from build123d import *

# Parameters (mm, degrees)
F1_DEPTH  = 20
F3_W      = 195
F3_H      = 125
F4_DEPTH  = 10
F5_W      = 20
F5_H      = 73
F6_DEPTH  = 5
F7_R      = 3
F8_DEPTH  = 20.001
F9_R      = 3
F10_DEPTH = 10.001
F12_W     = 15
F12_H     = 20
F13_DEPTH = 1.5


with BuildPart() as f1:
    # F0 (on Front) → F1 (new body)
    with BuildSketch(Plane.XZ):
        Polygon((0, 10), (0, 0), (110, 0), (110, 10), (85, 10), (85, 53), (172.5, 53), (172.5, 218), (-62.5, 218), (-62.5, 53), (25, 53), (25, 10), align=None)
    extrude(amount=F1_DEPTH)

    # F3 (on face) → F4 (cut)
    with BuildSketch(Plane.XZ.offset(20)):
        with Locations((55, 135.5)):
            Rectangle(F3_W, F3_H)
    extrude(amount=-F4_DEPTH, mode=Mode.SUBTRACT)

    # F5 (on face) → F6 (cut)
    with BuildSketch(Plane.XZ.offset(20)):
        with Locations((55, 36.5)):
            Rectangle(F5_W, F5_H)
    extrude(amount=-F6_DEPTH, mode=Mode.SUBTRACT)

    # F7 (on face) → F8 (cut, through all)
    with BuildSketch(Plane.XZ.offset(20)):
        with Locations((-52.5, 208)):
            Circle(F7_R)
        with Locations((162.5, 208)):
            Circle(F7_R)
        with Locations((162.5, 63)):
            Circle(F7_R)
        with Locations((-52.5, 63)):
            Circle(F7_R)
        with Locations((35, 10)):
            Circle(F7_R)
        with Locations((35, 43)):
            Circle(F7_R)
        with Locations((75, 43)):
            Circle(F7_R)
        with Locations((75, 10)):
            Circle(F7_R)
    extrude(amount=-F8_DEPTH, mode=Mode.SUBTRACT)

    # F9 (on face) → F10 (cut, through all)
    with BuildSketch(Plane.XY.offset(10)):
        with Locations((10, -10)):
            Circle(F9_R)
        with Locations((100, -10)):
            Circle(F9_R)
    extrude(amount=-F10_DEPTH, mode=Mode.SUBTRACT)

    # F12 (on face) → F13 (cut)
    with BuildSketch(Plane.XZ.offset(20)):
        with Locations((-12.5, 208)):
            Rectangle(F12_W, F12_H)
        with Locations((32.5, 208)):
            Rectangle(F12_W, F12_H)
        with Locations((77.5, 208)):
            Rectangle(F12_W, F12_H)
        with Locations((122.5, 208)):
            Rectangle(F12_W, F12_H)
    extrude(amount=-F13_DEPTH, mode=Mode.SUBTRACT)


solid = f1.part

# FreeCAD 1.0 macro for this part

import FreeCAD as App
import Part
import Sketcher

doc = App.newDocument("Part")
body = doc.addObject("PartDesign::Body", "Body")

sketch1 = doc.addObject("Sketcher::SketchObject", "Sketch")
body.addObject(sketch1)
sketch1.AttachmentSupport = (doc.XZ_Plane, [""])
sketch1.MapMode = "FlatFace"
sketch1.addGeometry([
    Part.LineSegment(App.Vector(0, 10, 0), App.Vector(0, 0, 0)),
    Part.LineSegment(App.Vector(0, 0, 0), App.Vector(110, 0, 0)),
    Part.LineSegment(App.Vector(110, 0, 0), App.Vector(110, 10, 0)),
    Part.LineSegment(App.Vector(110, 10, 0), App.Vector(85, 10, 0)),
    Part.LineSegment(App.Vector(85, 10, 0), App.Vector(85, 53, 0)),
    Part.LineSegment(App.Vector(85, 53, 0), App.Vector(172, 53, 0)),
    Part.LineSegment(App.Vector(172, 53, 0), App.Vector(172, 218, 0)),
    Part.LineSegment(App.Vector(172, 218, 0), App.Vector(-62, 218, 0)),
    Part.LineSegment(App.Vector(-62, 218, 0), App.Vector(-62, 53, 0)),
    Part.LineSegment(App.Vector(-62, 53, 0), App.Vector(25, 53, 0)),
    Part.LineSegment(App.Vector(25, 53, 0), App.Vector(25, 10, 0)),
    Part.LineSegment(App.Vector(25, 10, 0), App.Vector(0, 10, 0)),
], False)
sketch1.addConstraint([
    Sketcher.Constraint("Coincident", 0, 2, 1, 1),
    Sketcher.Constraint("Coincident", 1, 2, 2, 1),
    Sketcher.Constraint("Coincident", 2, 2, 3, 1),
    Sketcher.Constraint("Coincident", 3, 2, 4, 1),
    Sketcher.Constraint("Coincident", 4, 2, 5, 1),
    Sketcher.Constraint("Coincident", 5, 2, 6, 1),
    Sketcher.Constraint("Coincident", 6, 2, 7, 1),
    Sketcher.Constraint("Coincident", 7, 2, 8, 1),
    Sketcher.Constraint("Coincident", 8, 2, 9, 1),
    Sketcher.Constraint("Coincident", 9, 2, 10, 1),
    Sketcher.Constraint("Coincident", 10, 2, 11, 1),
    Sketcher.Constraint("Coincident", 11, 2, 0, 1),
    Sketcher.Constraint("Vertical", 0),
    Sketcher.Constraint("Horizontal", 1),
    Sketcher.Constraint("Vertical", 2),
    Sketcher.Constraint("Horizontal", 3),
    Sketcher.Constraint("Vertical", 4),
    Sketcher.Constraint("Horizontal", 5),
    Sketcher.Constraint("Vertical", 6),
    Sketcher.Constraint("Horizontal", 7),
    Sketcher.Constraint("Vertical", 8),
    Sketcher.Constraint("Horizontal", 9),
    Sketcher.Constraint("Vertical", 10),
    Sketcher.Constraint("Horizontal", 11),
    Sketcher.Constraint("Coincident", 0, 2, -1, 1),
    Sketcher.Constraint("Horizontal", 5, 2, 8, 2),
    Sketcher.Constraint("Horizontal", 3, 2, 10, 2),
    Sketcher.Constraint("Equal", 5, 9),
    Sketcher.Constraint("Equal", 3, 11),
    Sketcher.Constraint("DistanceX", 1, 1, 1, 2, 110.0),
    Sketcher.Constraint("DistanceX", 3, 2, 3, 1, 25.0),
    Sketcher.Constraint("DistanceX", 7, 2, 7, 1, 235.0),
    Sketcher.Constraint("DistanceY", 0, 2, 0, 1, 10.0),
    Sketcher.Constraint("DistanceY", 4, 1, 4, 2, 43.0),
    Sketcher.Constraint("DistanceY", 6, 1, 6, 2, 165.0),
])
pad1 = doc.addObject("PartDesign::Pad", "Pad")
body.addObject(pad1)
pad1.Profile = sketch1
pad1.Length = 20

sketch2 = doc.addObject("Sketcher::SketchObject", "Sketch001")
body.addObject(sketch2)
sketch2.AttachmentSupport = (doc.XZ_Plane, [""])
sketch2.MapMode = "FlatFace"
sketch2.AttachmentOffset = App.Placement(App.Vector(0, 0, 20), App.Rotation())
sketch2.addGeometry([
    Part.LineSegment(App.Vector(-42, 198, 0), App.Vector(-42, 73, 0)),
    Part.LineSegment(App.Vector(-42, 73, 0), App.Vector(152, 73, 0)),
    Part.LineSegment(App.Vector(152, 73, 0), App.Vector(152, 198, 0)),
    Part.LineSegment(App.Vector(152, 198, 0), App.Vector(-42, 198, 0)),
], False)
sketch2.addConstraint([
    Sketcher.Constraint("Coincident", 0, 2, 1, 1),
    Sketcher.Constraint("Coincident", 1, 2, 2, 1),
    Sketcher.Constraint("Coincident", 2, 2, 3, 1),
    Sketcher.Constraint("Coincident", 3, 2, 0, 1),
    Sketcher.Constraint("Vertical", 0),
    Sketcher.Constraint("Horizontal", 1),
    Sketcher.Constraint("Vertical", 2),
    Sketcher.Constraint("Horizontal", 3),
    Sketcher.Constraint("DistanceX", 1, 1, 1, 2, 195.0),
    Sketcher.Constraint("DistanceY", 0, 2, 0, 1, 125.0),
    Sketcher.Constraint("DistanceY", -1, 1, 0, 2, 73.0),
    Sketcher.Constraint("DistanceX", 0, 2, -1, 1, 42.5),
])
pocket1 = doc.addObject("PartDesign::Pocket", "Pocket")
body.addObject(pocket1)
pocket1.Profile = sketch2
pocket1.Length = 10

sketch3 = doc.addObject("Sketcher::SketchObject", "Sketch002")
body.addObject(sketch3)
sketch3.AttachmentSupport = (doc.XZ_Plane, [""])
sketch3.MapMode = "FlatFace"
sketch3.AttachmentOffset = App.Placement(App.Vector(0, 0, 20), App.Rotation())
sketch3.addGeometry([
    Part.LineSegment(App.Vector(45, 73, 0), App.Vector(45, 0, 0)),
    Part.LineSegment(App.Vector(45, 0, 0), App.Vector(65, 0, 0)),
    Part.LineSegment(App.Vector(65, 0, 0), App.Vector(65, 73, 0)),
    Part.LineSegment(App.Vector(65, 73, 0), App.Vector(45, 73, 0)),
], False)
sketch3.addConstraint([
    Sketcher.Constraint("Coincident", 0, 2, 1, 1),
    Sketcher.Constraint("Coincident", 1, 2, 2, 1),
    Sketcher.Constraint("Coincident", 2, 2, 3, 1),
    Sketcher.Constraint("Coincident", 3, 2, 0, 1),
    Sketcher.Constraint("Vertical", 0),
    Sketcher.Constraint("Horizontal", 1),
    Sketcher.Constraint("Vertical", 2),
    Sketcher.Constraint("Horizontal", 3),
    Sketcher.Constraint("PointOnObject", 0, 2, -1),
    Sketcher.Constraint("DistanceX", 1, 1, 1, 2, 20.0),
    Sketcher.Constraint("DistanceY", 0, 2, 0, 1, 73.0),
    Sketcher.Constraint("DistanceX", -1, 1, 0, 2, 45.0),
])
pocket2 = doc.addObject("PartDesign::Pocket", "Pocket001")
body.addObject(pocket2)
pocket2.Profile = sketch3
pocket2.Length = 5

sketch4 = doc.addObject("Sketcher::SketchObject", "Sketch003")
body.addObject(sketch4)
sketch4.AttachmentSupport = (doc.XZ_Plane, [""])
sketch4.MapMode = "FlatFace"
sketch4.AttachmentOffset = App.Placement(App.Vector(0, 0, 20), App.Rotation())
sketch4.addGeometry([
    Part.Circle(App.Vector(-52.5, 208, 0), App.Vector(0, 0, 1), 3),
    Part.Circle(App.Vector(162.5, 208, 0), App.Vector(0, 0, 1), 3),
    Part.Circle(App.Vector(162.5, 63, 0), App.Vector(0, 0, 1), 3),
    Part.Circle(App.Vector(-52.5, 63, 0), App.Vector(0, 0, 1), 3),
    Part.Circle(App.Vector(35, 10, 0), App.Vector(0, 0, 1), 3),
    Part.Circle(App.Vector(35, 43, 0), App.Vector(0, 0, 1), 3),
    Part.Circle(App.Vector(75, 43, 0), App.Vector(0, 0, 1), 3),
    Part.Circle(App.Vector(75, 10, 0), App.Vector(0, 0, 1), 3),
], False)
sketch4.addConstraint([
    Sketcher.Constraint("Equal", 0, 1),
    Sketcher.Constraint("Equal", 1, 2),
    Sketcher.Constraint("Equal", 2, 3),
    Sketcher.Constraint("Equal", 3, 4),
    Sketcher.Constraint("Equal", 4, 5),
    Sketcher.Constraint("Equal", 5, 6),
    Sketcher.Constraint("Equal", 6, 7),
    Sketcher.Constraint("Horizontal", 0, 3, 1, 3),
    Sketcher.Constraint("Horizontal", 2, 3, 3, 3),
    Sketcher.Constraint("Horizontal", 5, 3, 6, 3),
    Sketcher.Constraint("Horizontal", 4, 3, 7, 3),
    Sketcher.Constraint("Vertical", 1, 3, 2, 3),
    Sketcher.Constraint("Vertical", 0, 3, 3, 3),
    Sketcher.Constraint("Vertical", 4, 3, 5, 3),
    Sketcher.Constraint("Vertical", 6, 3, 7, 3),
    Sketcher.Constraint("Diameter", 0, 6.0),
    Sketcher.Constraint("DistanceY", -1, 1, 0, 3, 208.0),
    Sketcher.Constraint("DistanceY", -1, 1, 2, 3, 63.0),
    Sketcher.Constraint("DistanceX", -1, 1, 4, 3, 35.0),
    Sketcher.Constraint("DistanceY", -1, 1, 4, 3, 10.0),
    Sketcher.Constraint("DistanceY", -1, 1, 5, 3, 43.0),
    Sketcher.Constraint("DistanceX", -1, 1, 6, 3, 75.0),
    Sketcher.Constraint("DistanceX", 0, 3, 1, 3, 215.0),
    Sketcher.Constraint("DistanceX", 0, 3, -1, 1, 52.5),
])
pocket3 = doc.addObject("PartDesign::Pocket", "Pocket002")
body.addObject(pocket3)
pocket3.Profile = sketch4
pocket3.Type = "ThroughAll"

sketch5 = doc.addObject("Sketcher::SketchObject", "Sketch004")
body.addObject(sketch5)
sketch5.AttachmentSupport = (doc.XY_Plane, [""])
sketch5.MapMode = "FlatFace"
sketch5.AttachmentOffset = App.Placement(App.Vector(0, 0, 10), App.Rotation())
sketch5.addGeometry([
    Part.Circle(App.Vector(10, -10, 0), App.Vector(0, 0, 1), 3),
    Part.Circle(App.Vector(100, -10, 0), App.Vector(0, 0, 1), 3),
], False)
sketch5.addConstraint([
    Sketcher.Constraint("Equal", 0, 1),
    Sketcher.Constraint("Horizontal", 0, 3, 1, 3),
    Sketcher.Constraint("Diameter", 0, 6.0),
    Sketcher.Constraint("DistanceX", -1, 1, 0, 3, 10.0),
    Sketcher.Constraint("DistanceY", 0, 3, -1, 1, 10.0),
    Sketcher.Constraint("DistanceX", -1, 1, 1, 3, 100.0),
])
pocket4 = doc.addObject("PartDesign::Pocket", "Pocket003")
body.addObject(pocket4)
pocket4.Profile = sketch5
pocket4.Type = "ThroughAll"

sketch6 = doc.addObject("Sketcher::SketchObject", "Sketch005")
body.addObject(sketch6)
sketch6.AttachmentSupport = (doc.XZ_Plane, [""])
sketch6.MapMode = "FlatFace"
sketch6.AttachmentOffset = App.Placement(App.Vector(0, 0, 20), App.Rotation())
sketch6.addGeometry([
    Part.LineSegment(App.Vector(-20, 218, 0), App.Vector(-20, 198, 0)),
    Part.LineSegment(App.Vector(-20, 198, 0), App.Vector(-5, 198, 0)),
    Part.LineSegment(App.Vector(-5, 198, 0), App.Vector(-5, 218, 0)),
    Part.LineSegment(App.Vector(-5, 218, 0), App.Vector(-20, 218, 0)),
    Part.LineSegment(App.Vector(25, 218, 0), App.Vector(25, 198, 0)),
    Part.LineSegment(App.Vector(25, 198, 0), App.Vector(40, 198, 0)),
    Part.LineSegment(App.Vector(40, 198, 0), App.Vector(40, 218, 0)),
    Part.LineSegment(App.Vector(40, 218, 0), App.Vector(25, 218, 0)),
    Part.LineSegment(App.Vector(70, 218, 0), App.Vector(70, 198, 0)),
    Part.LineSegment(App.Vector(70, 198, 0), App.Vector(85, 198, 0)),
    Part.LineSegment(App.Vector(85, 198, 0), App.Vector(85, 218, 0)),
    Part.LineSegment(App.Vector(85, 218, 0), App.Vector(70, 218, 0)),
    Part.LineSegment(App.Vector(115, 218, 0), App.Vector(115, 198, 0)),
    Part.LineSegment(App.Vector(115, 198, 0), App.Vector(130, 198, 0)),
    Part.LineSegment(App.Vector(130, 198, 0), App.Vector(130, 218, 0)),
    Part.LineSegment(App.Vector(130, 218, 0), App.Vector(115, 218, 0)),
], False)
sketch6.addConstraint([
    Sketcher.Constraint("Coincident", 0, 2, 1, 1),
    Sketcher.Constraint("Coincident", 1, 2, 2, 1),
    Sketcher.Constraint("Coincident", 2, 2, 3, 1),
    Sketcher.Constraint("Coincident", 3, 2, 0, 1),
    Sketcher.Constraint("Coincident", 4, 2, 5, 1),
    Sketcher.Constraint("Coincident", 5, 2, 6, 1),
    Sketcher.Constraint("Coincident", 6, 2, 7, 1),
    Sketcher.Constraint("Coincident", 7, 2, 4, 1),
    Sketcher.Constraint("Coincident", 8, 2, 9, 1),
    Sketcher.Constraint("Coincident", 9, 2, 10, 1),
    Sketcher.Constraint("Coincident", 10, 2, 11, 1),
    Sketcher.Constraint("Coincident", 11, 2, 8, 1),
    Sketcher.Constraint("Coincident", 12, 2, 13, 1),
    Sketcher.Constraint("Coincident", 13, 2, 14, 1),
    Sketcher.Constraint("Coincident", 14, 2, 15, 1),
    Sketcher.Constraint("Coincident", 15, 2, 12, 1),
    Sketcher.Constraint("Vertical", 0),
    Sketcher.Constraint("Horizontal", 1),
    Sketcher.Constraint("Vertical", 2),
    Sketcher.Constraint("Horizontal", 3),
    Sketcher.Constraint("Vertical", 4),
    Sketcher.Constraint("Horizontal", 5),
    Sketcher.Constraint("Vertical", 6),
    Sketcher.Constraint("Horizontal", 7),
    Sketcher.Constraint("Vertical", 8),
    Sketcher.Constraint("Horizontal", 9),
    Sketcher.Constraint("Vertical", 10),
    Sketcher.Constraint("Horizontal", 11),
    Sketcher.Constraint("Vertical", 12),
    Sketcher.Constraint("Horizontal", 13),
    Sketcher.Constraint("Vertical", 14),
    Sketcher.Constraint("Horizontal", 15),
    Sketcher.Constraint("Horizontal", 1, 2, 4, 2),
    Sketcher.Constraint("Horizontal", 3, 2, 6, 2),
    Sketcher.Constraint("Horizontal", 5, 2, 8, 2),
    Sketcher.Constraint("Horizontal", 7, 2, 10, 2),
    Sketcher.Constraint("Horizontal", 9, 2, 12, 2),
    Sketcher.Constraint("Horizontal", 11, 2, 14, 2),
    Sketcher.Constraint("Equal", 3, 5),
    Sketcher.Constraint("Equal", 7, 9),
    Sketcher.Constraint("Equal", 11, 13),
    Sketcher.Constraint("DistanceX", 1, 1, 1, 2, 15.0),
    Sketcher.Constraint("DistanceY", 0, 2, 0, 1, 20.0),
    Sketcher.Constraint("DistanceX", 0, 2, -1, 1, 20.0),
    Sketcher.Constraint("DistanceY", -1, 1, 0, 2, 198.0),
    Sketcher.Constraint("DistanceX", -1, 1, 4, 2, 25.0),
    Sketcher.Constraint("DistanceX", -1, 1, 8, 2, 70.0),
    Sketcher.Constraint("DistanceX", -1, 1, 12, 2, 115.0),
])
pocket5 = doc.addObject("PartDesign::Pocket", "Pocket004")
body.addObject(pocket5)
pocket5.Profile = sketch6
pocket5.Length = 1.5

doc.recompute()
